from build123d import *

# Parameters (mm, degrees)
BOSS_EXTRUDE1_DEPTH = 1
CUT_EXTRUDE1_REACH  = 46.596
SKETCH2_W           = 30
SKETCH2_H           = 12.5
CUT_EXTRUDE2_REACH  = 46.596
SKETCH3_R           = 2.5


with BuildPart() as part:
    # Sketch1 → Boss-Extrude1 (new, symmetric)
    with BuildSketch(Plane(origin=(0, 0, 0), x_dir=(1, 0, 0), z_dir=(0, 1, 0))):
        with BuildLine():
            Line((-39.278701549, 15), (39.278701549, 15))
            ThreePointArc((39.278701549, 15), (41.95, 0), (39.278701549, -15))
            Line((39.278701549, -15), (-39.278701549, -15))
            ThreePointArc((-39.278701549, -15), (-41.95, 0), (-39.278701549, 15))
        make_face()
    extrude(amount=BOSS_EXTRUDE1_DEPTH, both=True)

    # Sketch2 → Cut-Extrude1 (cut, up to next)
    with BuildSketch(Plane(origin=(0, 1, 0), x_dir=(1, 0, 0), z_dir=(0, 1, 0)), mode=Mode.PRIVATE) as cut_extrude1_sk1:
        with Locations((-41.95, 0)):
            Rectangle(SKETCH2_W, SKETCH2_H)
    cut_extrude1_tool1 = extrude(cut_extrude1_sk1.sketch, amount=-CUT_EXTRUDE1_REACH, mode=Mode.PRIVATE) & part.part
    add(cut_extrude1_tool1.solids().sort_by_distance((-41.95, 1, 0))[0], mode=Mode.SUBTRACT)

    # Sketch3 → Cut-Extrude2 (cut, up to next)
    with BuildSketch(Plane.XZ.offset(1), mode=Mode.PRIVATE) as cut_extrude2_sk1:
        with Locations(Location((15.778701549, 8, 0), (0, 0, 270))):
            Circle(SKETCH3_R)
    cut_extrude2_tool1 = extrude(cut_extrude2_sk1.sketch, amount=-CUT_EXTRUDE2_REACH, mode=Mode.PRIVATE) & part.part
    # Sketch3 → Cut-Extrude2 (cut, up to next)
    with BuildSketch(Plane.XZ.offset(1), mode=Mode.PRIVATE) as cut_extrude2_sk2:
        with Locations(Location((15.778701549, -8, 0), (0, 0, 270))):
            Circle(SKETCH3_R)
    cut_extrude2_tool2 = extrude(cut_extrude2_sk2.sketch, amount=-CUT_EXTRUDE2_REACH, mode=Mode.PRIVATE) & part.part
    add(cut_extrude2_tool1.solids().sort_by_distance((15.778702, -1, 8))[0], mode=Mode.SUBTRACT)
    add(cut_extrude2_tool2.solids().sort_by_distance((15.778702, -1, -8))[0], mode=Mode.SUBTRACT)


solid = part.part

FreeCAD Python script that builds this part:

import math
import FreeCAD as App
import Part
import Sketcher
from FreeCAD import Vector

doc = App.newDocument("Part")
body = doc.addObject("PartDesign::Body", "Body")

sketch1 = doc.addObject("Sketcher::SketchObject", "Sketch")
body.addObject(sketch1)
sketch1.AttachmentSupport = (doc.XZ_Plane, [""])
sketch1.MapMode = "FlatFace"
sketch1.addGeometry([
    Part.LineSegment(Vector(39, -15, 0), Vector(-39, -15, 0)),
    Part.ArcOfCircle(Part.Circle(Vector(2, 0, 0), Vector(0, 0, 1), 43), math.radians(160), math.radians(200)),
    Part.LineSegment(Vector(-39, 15, 0), Vector(39, 15, 0)),
    Part.ArcOfCircle(Part.Circle(Vector(-2, 0, 0), Vector(0, 0, 1), 43), math.radians(-20), math.radians(20)),
], False)
sketch1.addConstraint([
    Sketcher.Constraint("Coincident", 0, 2, 1, 2),
    Sketcher.Constraint("Coincident", 1, 1, 2, 1),
    Sketcher.Constraint("Coincident", 2, 2, 3, 2),
    Sketcher.Constraint("Coincident", 3, 1, 0, 1),
    Sketcher.Constraint("Horizontal", 0),
    Sketcher.Constraint("Horizontal", 2),
    Sketcher.Constraint("Equal", 1, 3),
    Sketcher.Constraint("Symmetric", 1, 3, 3, 3, -1, 1),
    Sketcher.Constraint("Symmetric", 0, 2, 1, 1, -1),
    Sketcher.Constraint("Radius", 1, 43.45),
    Sketcher.Constraint("DistanceY", 0, 2, -1, 1, 15.0),
    Sketcher.Constraint("DistanceX", 3, 3, 1, 3, 3.0),
])
pad1 = doc.addObject("PartDesign::Pad", "Pad")
body.addObject(pad1)
pad1.Profile = sketch1
pad1.Length = 2
pad1.Midplane = True

sketch2 = doc.addObject("Sketcher::SketchObject", "Sketch001")
body.addObject(sketch2)
sketch2.AttachmentSupport = (doc.XZ_Plane, [""])
sketch2.MapMode = "FlatFace"
sketch2.AttachmentOffset = App.Placement(Vector(0, 0, -1), App.Rotation())
sketch2.addGeometry([
    Part.LineSegment(Vector(-57, -6, 0), Vector(-57, 6, 0)),
    Part.LineSegment(Vector(-57, 6, 0), Vector(-27, 6, 0)),
    Part.LineSegment(Vector(-27, 6, 0), Vector(-27, -6, 0)),
    Part.LineSegment(Vector(-27, -6, 0), Vector(-57, -6, 0)),
], False)
sketch2.addConstraint([
    Sketcher.Constraint("Coincident", 0, 2, 1, 1),
    Sketcher.Constraint("Coincident", 1, 2, 2, 1),
    Sketcher.Constraint("Coincident", 2, 2, 3, 1),
    Sketcher.Constraint("Coincident", 3, 2, 0, 1),
    Sketcher.Constraint("Vertical", 0),
    Sketcher.Constraint("Horizontal", 1),
    Sketcher.Constraint("Vertical", 2),
    Sketcher.Constraint("Horizontal", 3),
    Sketcher.Constraint("DistanceX", 1, 1, 1, 2, 30.0),
    Sketcher.Constraint("DistanceY", 0, 1, 0, 2, 12.5),
    Sketcher.Constraint("DistanceX", 0, 2, -1, 1, 56.95),
    Sketcher.Constraint("DistanceY", -1, 1, 0, 2, 6.25),
])
pocket1 = doc.addObject("PartDesign::Pocket", "Pocket")
body.addObject(pocket1)
pocket1.Profile = sketch2
pocket1.Type = "UpToFirst"
pocket1.Reversed = True

sketch3 = doc.addObject("Sketcher::SketchObject", "Sketch002")
body.addObject(sketch3)
sketch3.AttachmentSupport = (doc.XZ_Plane, [""])
sketch3.MapMode = "FlatFace"
sketch3.AttachmentOffset = App.Placement(Vector(0, 0, 1), App.Rotation())
sketch3.addGeometry(Part.Circle(Vector(15.8, 8, 0), Vector(0, 0, 1), 2.5), False)
sketch3.addConstraint([
    Sketcher.Constraint("Diameter", 0, 5.0),
    Sketcher.Constraint("DistanceY", -1, 1, 0, 3, 8.0),
    Sketcher.Constraint("DistanceX", -1, 1, 0, 3, 15.778702),
])
pocket2 = doc.addObject("PartDesign::Pocket", "Pocket001")
body.addObject(pocket2)
pocket2.Profile = sketch3
pocket2.Type = "UpToFirst"

sketch4 = doc.addObject("Sketcher::SketchObject", "Sketch003")
body.addObject(sketch4)
sketch4.AttachmentSupport = (doc.XZ_Plane, [""])
sketch4.MapMode = "FlatFace"
sketch4.AttachmentOffset = App.Placement(Vector(0, 0, 1), App.Rotation())
sketch4.addGeometry(Part.Circle(Vector(15.8, -8, 0), Vector(0, 0, 1), 2.5), False)
sketch4.addConstraint([
    Sketcher.Constraint("Diameter", 0, 5.0),
    Sketcher.Constraint("DistanceY", 0, 3, -1, 1, 8.0),
    Sketcher.Constraint("DistanceX", -1, 1, 0, 3, 15.778702),
])
pocket3 = doc.addObject("PartDesign::Pocket", "Pocket002")
body.addObject(pocket3)
pocket3.Profile = sketch4
pocket3.Type = "UpToFirst"

doc.recompute()
